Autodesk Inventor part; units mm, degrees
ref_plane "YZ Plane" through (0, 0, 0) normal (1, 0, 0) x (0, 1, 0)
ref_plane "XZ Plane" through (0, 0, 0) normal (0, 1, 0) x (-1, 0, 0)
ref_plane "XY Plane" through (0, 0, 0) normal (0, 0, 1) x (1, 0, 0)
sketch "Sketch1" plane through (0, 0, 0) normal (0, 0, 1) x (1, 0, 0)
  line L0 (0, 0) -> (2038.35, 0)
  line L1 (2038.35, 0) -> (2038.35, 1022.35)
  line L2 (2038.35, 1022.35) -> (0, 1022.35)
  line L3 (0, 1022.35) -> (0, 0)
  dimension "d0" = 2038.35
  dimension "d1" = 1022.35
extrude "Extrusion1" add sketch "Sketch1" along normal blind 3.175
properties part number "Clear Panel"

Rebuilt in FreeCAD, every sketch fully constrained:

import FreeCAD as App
import Part
import Sketcher

V = App.Vector
Q = App.Units.Quantity


def add_polygon(sketch, points):
    """Adds a closed chain of lines whose ends are joined by coincident constraints."""
    first, n = sketch.GeometryCount, len(points)
    for a, b in zip(points, points[1:] + points[:1]):
        sketch.addGeometry(Part.LineSegment(App.Vector(*a, 0), App.Vector(*b, 0)), False)
    for i in range(n):
        sketch.addConstraint(Sketcher.Constraint("Coincident", first + i, 2, first + (i + 1) % n, 1))

doc = App.newDocument("Part")
body = doc.addObject("PartDesign::Body", "Body")

sketch1 = body.newObject("Sketcher::SketchObject", "Sketch")
sketch1.AttachmentSupport = (doc.getObject("XY_Plane"), [""])
sketch1.MapMode = "FlatFace"
add_polygon(sketch1, [(0, 1022), (0, 0), (2038, 0), (2038, 1022)])
sketch1.addConstraint([
    Sketcher.Constraint("Vertical", 0),
    Sketcher.Constraint("Horizontal", 1),
    Sketcher.Constraint("Vertical", 2),
    Sketcher.Constraint("Horizontal", 3),
    Sketcher.Constraint("Coincident", 0, 2, -1, 1),
    Sketcher.Constraint("DistanceX", 1, 1, 1, 2, Q("80.25 in")),
    Sketcher.Constraint("DistanceY", 0, 2, 0, 1, Q("40.25 in")),
])
pad1 = body.newObject("PartDesign::Pad", "Pad")
pad1.Profile = sketch1
pad1.Length = Q("0.125 in")

doc.recompute()
